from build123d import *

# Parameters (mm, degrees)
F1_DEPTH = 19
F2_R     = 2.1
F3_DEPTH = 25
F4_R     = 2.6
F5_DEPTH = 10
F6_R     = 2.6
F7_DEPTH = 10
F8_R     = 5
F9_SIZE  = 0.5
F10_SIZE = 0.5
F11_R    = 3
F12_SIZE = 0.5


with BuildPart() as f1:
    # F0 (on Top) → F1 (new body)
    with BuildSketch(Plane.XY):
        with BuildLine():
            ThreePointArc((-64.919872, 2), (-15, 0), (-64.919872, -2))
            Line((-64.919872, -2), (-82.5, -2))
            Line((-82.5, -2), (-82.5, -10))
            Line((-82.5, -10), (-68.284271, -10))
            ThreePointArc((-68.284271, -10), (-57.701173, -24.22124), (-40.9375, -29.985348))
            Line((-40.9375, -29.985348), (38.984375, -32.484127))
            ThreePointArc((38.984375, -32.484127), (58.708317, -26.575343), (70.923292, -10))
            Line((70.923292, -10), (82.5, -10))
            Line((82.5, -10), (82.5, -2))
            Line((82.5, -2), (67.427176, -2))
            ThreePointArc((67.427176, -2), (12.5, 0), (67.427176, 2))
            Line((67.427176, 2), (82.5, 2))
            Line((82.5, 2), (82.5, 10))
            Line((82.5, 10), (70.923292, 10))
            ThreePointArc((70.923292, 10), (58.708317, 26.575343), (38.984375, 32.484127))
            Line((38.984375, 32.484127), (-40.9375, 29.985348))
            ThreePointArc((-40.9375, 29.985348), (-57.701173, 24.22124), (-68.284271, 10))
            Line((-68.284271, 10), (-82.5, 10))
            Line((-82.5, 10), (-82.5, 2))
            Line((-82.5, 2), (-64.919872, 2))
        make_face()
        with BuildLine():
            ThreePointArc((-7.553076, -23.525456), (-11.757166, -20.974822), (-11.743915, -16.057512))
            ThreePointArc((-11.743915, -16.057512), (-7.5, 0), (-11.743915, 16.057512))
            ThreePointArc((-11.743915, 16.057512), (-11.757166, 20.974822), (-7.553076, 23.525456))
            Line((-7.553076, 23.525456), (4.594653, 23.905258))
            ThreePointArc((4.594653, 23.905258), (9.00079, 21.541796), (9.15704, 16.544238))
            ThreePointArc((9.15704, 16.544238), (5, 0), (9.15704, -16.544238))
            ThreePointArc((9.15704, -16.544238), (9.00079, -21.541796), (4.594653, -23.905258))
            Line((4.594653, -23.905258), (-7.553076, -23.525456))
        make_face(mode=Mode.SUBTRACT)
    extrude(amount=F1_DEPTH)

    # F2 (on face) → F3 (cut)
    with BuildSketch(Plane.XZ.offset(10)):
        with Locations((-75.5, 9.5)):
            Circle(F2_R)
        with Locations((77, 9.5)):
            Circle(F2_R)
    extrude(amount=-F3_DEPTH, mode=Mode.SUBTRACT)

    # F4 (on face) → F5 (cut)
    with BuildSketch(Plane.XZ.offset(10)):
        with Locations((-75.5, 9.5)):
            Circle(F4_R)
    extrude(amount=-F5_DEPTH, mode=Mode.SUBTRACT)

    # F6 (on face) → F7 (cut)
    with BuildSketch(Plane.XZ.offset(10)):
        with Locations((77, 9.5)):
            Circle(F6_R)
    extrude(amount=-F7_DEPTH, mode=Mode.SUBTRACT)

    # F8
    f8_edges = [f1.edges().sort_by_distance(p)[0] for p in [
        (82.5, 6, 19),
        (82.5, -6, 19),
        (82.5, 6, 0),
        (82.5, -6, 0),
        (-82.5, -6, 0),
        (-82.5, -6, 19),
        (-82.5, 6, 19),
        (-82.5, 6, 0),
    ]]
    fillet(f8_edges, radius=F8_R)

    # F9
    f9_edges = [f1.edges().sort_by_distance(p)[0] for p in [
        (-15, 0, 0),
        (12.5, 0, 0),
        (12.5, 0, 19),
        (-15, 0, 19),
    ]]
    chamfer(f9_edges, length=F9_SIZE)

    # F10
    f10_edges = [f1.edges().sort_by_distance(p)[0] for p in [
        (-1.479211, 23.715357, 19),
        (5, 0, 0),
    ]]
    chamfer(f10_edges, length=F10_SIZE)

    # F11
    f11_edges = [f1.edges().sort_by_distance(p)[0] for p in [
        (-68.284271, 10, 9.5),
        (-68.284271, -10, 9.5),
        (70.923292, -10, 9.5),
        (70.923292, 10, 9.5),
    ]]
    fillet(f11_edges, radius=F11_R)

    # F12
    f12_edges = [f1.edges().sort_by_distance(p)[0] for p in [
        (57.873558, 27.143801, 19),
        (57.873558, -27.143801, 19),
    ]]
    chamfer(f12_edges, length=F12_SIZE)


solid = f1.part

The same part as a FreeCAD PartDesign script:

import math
import FreeCAD as App
import Part
import Sketcher
from FreeCAD import Vector


def edges_at(feature, points):
    """Names of the edges that pass closest to the given points."""
    edges = feature.Shape.Edges
    near = lambda p: min(range(len(edges)), key=lambda i: edges[i].distToShape(Part.Vertex(*p))[0])
    return sorted({f"Edge{near(p) + 1}" for p in points})

doc = App.newDocument("Part")
body = doc.addObject("PartDesign::Body", "Body")

# Sketch on XY plane
sketch1 = doc.addObject("Sketcher::SketchObject", "Sketch")
body.addObject(sketch1)
sketch1.AttachmentSupport = (doc.XY_Plane, [""])
sketch1.MapMode = "FlatFace"
sketch1.addGeometry(Part.ArcOfCircle(Part.Circle(Vector(-40, 0, 0), Vector(0, 0, 1), 25), math.radians(-175), math.radians(175)), False)
sketch1.addGeometry(Part.LineSegment(Vector(-64.9, -2, 0), Vector(-82.5, -2, 0)), False)
sketch1.addGeometry(Part.LineSegment(Vector(-82.5, -2, 0), Vector(-82.5, -10, 0)), False)
sketch1.addGeometry(Part.LineSegment(Vector(-82.5, -10, 0), Vector(-68.3, -10, 0)), False)
sketch1.addGeometry(Part.ArcOfCircle(Part.Circle(Vector(-40, 0, 0), Vector(0, 0, 1), 30), math.radians(-161), math.radians(-92)), False)
sketch1.addGeometry(Part.LineSegment(Vector(-40.9, -30, 0), Vector(39, -32.5, 0)), False)
sketch1.addGeometry(Part.ArcOfCircle(Part.Circle(Vector(40, 0, 0), Vector(0, 0, 1), 32.5), math.radians(-92), math.radians(-18)), False)
sketch1.addGeometry(Part.LineSegment(Vector(70.9, -10, 0), Vector(82.5, -10, 0)), False)
sketch1.addGeometry(Part.LineSegment(Vector(82.5, -10, 0), Vector(82.5, -2, 0)), False)
sketch1.addGeometry(Part.LineSegment(Vector(82.5, -2, 0), Vector(67.4, -2, 0)), False)
sketch1.addGeometry(Part.ArcOfCircle(Part.Circle(Vector(40, 0, 0), Vector(0, 0, 1), 27.5), math.radians(4), math.radians(356)), False)
sketch1.addGeometry(Part.LineSegment(Vector(67.4, 2, 0), Vector(82.5, 2, 0)), False)
sketch1.addGeometry(Part.LineSegment(Vector(82.5, 2, 0), Vector(82.5, 10, 0)), False)
sketch1.addGeometry(Part.LineSegment(Vector(82.5, 10, 0), Vector(70.9, 10, 0)), False)
sketch1.addGeometry(Part.ArcOfCircle(Part.Circle(Vector(40, 0, 0), Vector(0, 0, 1), 32.5), math.radians(18), math.radians(92)), False)
sketch1.addGeometry(Part.LineSegment(Vector(39, 32.5, 0), Vector(-40.9, 30, 0)), False)
sketch1.addGeometry(Part.ArcOfCircle(Part.Circle(Vector(-40, 0, 0), Vector(0, 0, 1), 30), math.radians(92), math.radians(161)), False)
sketch1.addGeometry(Part.LineSegment(Vector(-68.3, 10, 0), Vector(-82.5, 10, 0)), False)
sketch1.addGeometry(Part.LineSegment(Vector(-82.5, 10, 0), Vector(-82.5, 2, 0)), False)
sketch1.addGeometry(Part.LineSegment(Vector(-82.5, 2, 0), Vector(-64.9, 2, 0)), False)
sketch1.addGeometry(Part.LineSegment(Vector(4.6, -23.9, 0), Vector(-7.6, -23.5, 0)), False)
sketch1.addGeometry(Part.ArcOfCircle(Part.Circle(Vector(-7.4, -18.5, 0), Vector(0, 0, 1), 5), math.radians(150), math.radians(268)), False)
sketch1.addGeometry(Part.ArcOfCircle(Part.Circle(Vector(-40, 0, 0), Vector(0, 0, 1), 32.5), math.radians(-30), math.radians(30)), False)
sketch1.addGeometry(Part.ArcOfCircle(Part.Circle(Vector(-7.4, 18.5, 0), Vector(0, 0, 1), 5), math.radians(92), math.radians(210)), False)
sketch1.addGeometry(Part.LineSegment(Vector(-7.6, 23.5, 0), Vector(4.6, 23.9, 0)), False)
sketch1.addGeometry(Part.ArcOfCircle(Part.Circle(Vector(4.8, 18.9, 0), Vector(0, 0, 1), 5), math.radians(-28), math.radians(92)), False)
sketch1.addGeometry(Part.ArcOfCircle(Part.Circle(Vector(40, 0, 0), Vector(0, 0, 1), 35), math.radians(152), math.radians(208)), False)
sketch1.addGeometry(Part.ArcOfCircle(Part.Circle(Vector(4.8, -18.9, 0), Vector(0, 0, 1), 5), math.radians(-92), math.radians(28)), False)
sketch1.addConstraint(Sketcher.Constraint("Coincident", 0, 1, 1, 1))
sketch1.addConstraint(Sketcher.Constraint("Coincident", 1, 2, 2, 1))
sketch1.addConstraint(Sketcher.Constraint("Coincident", 2, 2, 3, 1))
sketch1.addConstraint(Sketcher.Constraint("Coincident", 3, 2, 4, 1))
sketch1.addConstraint(Sketcher.Constraint("Tangent", 4, 2, 5, 1))
sketch1.addConstraint(Sketcher.Constraint("Tangent", 5, 2, 6, 1))
sketch1.addConstraint(Sketcher.Constraint("Coincident", 6, 2, 7, 1))
sketch1.addConstraint(Sketcher.Constraint("Coincident", 7, 2, 8, 1))
sketch1.addConstraint(Sketcher.Constraint("Coincident", 8, 2, 9, 1))
sketch1.addConstraint(Sketcher.Constraint("Coincident", 9, 2, 10, 2))
sketch1.addConstraint(Sketcher.Constraint("Coincident", 10, 1, 11, 1))
sketch1.addConstraint(Sketcher.Constraint("Coincident", 11, 2, 12, 1))
sketch1.addConstraint(Sketcher.Constraint("Coincident", 12, 2, 13, 1))
sketch1.addConstraint(Sketcher.Constraint("Coincident", 13, 2, 14, 1))
sketch1.addConstraint(Sketcher.Constraint("Tangent", 14, 2, 15, 1))
sketch1.addConstraint(Sketcher.Constraint("Tangent", 15, 2, 16, 1))
sketch1.addConstraint(Sketcher.Constraint("Coincident", 16, 2, 17, 1))
sketch1.addConstraint(Sketcher.Constraint("Coincident", 17, 2, 18, 1))
sketch1.addConstraint(Sketcher.Constraint("Coincident", 18, 2, 19, 1))
sketch1.addConstraint(Sketcher.Constraint("Coincident", 19, 2, 0, 2))
sketch1.addConstraint(Sketcher.Constraint("Tangent", 20, 2, 21, 2))
sketch1.addConstraint(Sketcher.Constraint("Tangent", 21, 1, 22, 1))
sketch1.addConstraint(Sketcher.Constraint("Tangent", 22, 2, 23, 2))
sketch1.addConstraint(Sketcher.Constraint("Tangent", 23, 1, 24, 1))
sketch1.addConstraint(Sketcher.Constraint("Tangent", 24, 2, 25, 2))
sketch1.addConstraint(Sketcher.Constraint("Tangent", 25, 1, 26, 1))
sketch1.addConstraint(Sketcher.Constraint("Tangent", 26, 2, 27, 2))
sketch1.addConstraint(Sketcher.Constraint("Tangent", 27, 1, 20, 1))
sketch1.addConstraint(Sketcher.Constraint("Horizontal", 1))
sketch1.addConstraint(Sketcher.Constraint("Vertical", 2))
sketch1.addConstraint(Sketcher.Constraint("Horizontal", 3))
sketch1.addConstraint(Sketcher.Constraint("Horizontal", 7))
sketch1.addConstraint(Sketcher.Constraint("Vertical", 8))
sketch1.addConstraint(Sketcher.Constraint("Horizontal", 9))
sketch1.addConstraint(Sketcher.Constraint("Horizontal", 11))
sketch1.addConstraint(Sketcher.Constraint("Vertical", 12))
sketch1.addConstraint(Sketcher.Constraint("Horizontal", 13))
sketch1.addConstraint(Sketcher.Constraint("Horizontal", 17))
sketch1.addConstraint(Sketcher.Constraint("Vertical", 18))
sketch1.addConstraint(Sketcher.Constraint("Horizontal", 19))
sketch1.addConstraint(Sketcher.Constraint("Coincident", 4, 3, 0, 3))
sketch1.addConstraint(Sketcher.Constraint("Coincident", 10, 3, 6, 3))
sketch1.addConstraint(Sketcher.Constraint("Coincident", 14, 3, 6, 3))
sketch1.addConstraint(Sketcher.Constraint("Coincident", 16, 3, 0, 3))
sketch1.addConstraint(Sketcher.Constraint("Coincident", 22, 3, 0, 3))
sketch1.addConstraint(Sketcher.Constraint("Coincident", 26, 3, 6, 3))
sketch1.addConstraint(Sketcher.Constraint("Equal", 6, 14))
sketch1.addConstraint(Sketcher.Constraint("Equal", 4, 16))
sketch1.addConstraint(Sketcher.Constraint("Equal", 21, 23))
sketch1.addConstraint(Sketcher.Constraint("Equal", 23, 25))
sketch1.addConstraint(Sketcher.Constraint("Equal", 25, 27))
sketch1.addConstraint(Sketcher.Constraint("Symmetric", 0, 3, 6, 3, -1, 1))
sketch1.addConstraint(Sketcher.Constraint("Symmetric", 1, 2, 11, 2, -1, 1))
sketch1.addConstraint(Sketcher.Constraint("Symmetric", 7, 2, 17, 2, -1, 1))
sketch1.addConstraint(Sketcher.Constraint("Symmetric", 2, 2, 7, 2, -2))
sketch1.addConstraint(Sketcher.Constraint("Symmetric", 21, 3, 23, 3, -1))
sketch1.addConstraint(Sketcher.Constraint("Parallel", 5, 20))
sketch1.addConstraint(Sketcher.Constraint("Parallel", 15, 24))
sketch1.addConstraint(Sketcher.Constraint("Horizontal", 1, 2, 8, 2))
sketch1.addConstraint(Sketcher.Constraint("Horizontal", 13, 2, 16, 2))
sketch1.addConstraint(Sketcher.Constraint("Horizontal", 11, 2, 18, 2))
sketch1.addConstraint(Sketcher.Constraint("Radius", 0, 25.0))
sketch1.addConstraint(Sketcher.Constraint("Radius", 4, 30.0))
sketch1.addConstraint(Sketcher.Constraint("Radius", 21, 4.999999))
sketch1.addConstraint(Sketcher.Constraint("Radius", 26, 34.999999))
sketch1.addConstraint(Sketcher.Constraint("Radius", 6, 32.500001))
sketch1.addConstraint(Sketcher.Constraint("Radius", 10, 27.5))
sketch1.addConstraint(Sketcher.Constraint("DistanceY", 2, 2, 2, 1, 8.0))
sketch1.addConstraint(Sketcher.Constraint("DistanceX", 0, 3, -1, 1, 40.0))
sketch1.addConstraint(Sketcher.Constraint("DistanceY", 0, 1, -1, 1, 2.0))
sketch1.addConstraint(Sketcher.Constraint("DistanceX", 1, 2, -1, 1, 82.5))
sketch1.addConstraint(Sketcher.Constraint("Radius", 22, 32.500004))
sketch1.addConstraint(Sketcher.Constraint("DistanceY", 21, 3, -1, 1, 18.527899))
pad1 = doc.addObject("PartDesign::Pad", "Pad")
body.addObject(pad1)
pad1.Profile = sketch1
pad1.Length = 19

# Sketch on XZ plane
sketch2 = doc.addObject("Sketcher::SketchObject", "Sketch001")
body.addObject(sketch2)
sketch2.AttachmentSupport = (doc.XZ_Plane, [""])
sketch2.MapMode = "FlatFace"
sketch2.AttachmentOffset = App.Placement(Vector(0, 0, 10), App.Rotation())
sketch2.addGeometry(Part.Circle(Vector(-75.5, 9.5, 0), Vector(0, 0, 1), 2.1), False)
sketch2.addGeometry(Part.Circle(Vector(77, 9.5, 0), Vector(0, 0, 1), 2.1), False)
sketch2.addConstraint(Sketcher.Constraint("Equal", 0, 1))
sketch2.addConstraint(Sketcher.Constraint("Horizontal", 0, 3, 1, 3))
sketch2.addConstraint(Sketcher.Constraint("Diameter", 0, 4.2))
sketch2.addConstraint(Sketcher.Constraint("DistanceX", -1, 1, 1, 3, 77.0))
sketch2.addConstraint(Sketcher.Constraint("DistanceX", 0, 3, -1, 1, 75.5))
sketch2.addConstraint(Sketcher.Constraint("DistanceY", -1, 1, 0, 3, 9.5))
pocket1 = doc.addObject("PartDesign::Pocket", "Pocket")
body.addObject(pocket1)
pocket1.Profile = sketch2
pocket1.Length = 25

# Sketch on XZ plane
sketch3 = doc.addObject("Sketcher::SketchObject", "Sketch002")
body.addObject(sketch3)
sketch3.AttachmentSupport = (doc.XZ_Plane, [""])
sketch3.MapMode = "FlatFace"
sketch3.AttachmentOffset = App.Placement(Vector(0, 0, 10), App.Rotation())
sketch3.addGeometry(Part.Circle(Vector(-75.5, 9.5, 0), Vector(0, 0, 1), 2.6), False)
sketch3.addConstraint(Sketcher.Constraint("Diameter", 0, 5.2))
sketch3.addConstraint(Sketcher.Constraint("DistanceX", 0, 3, -1, 1, 75.5))
sketch3.addConstraint(Sketcher.Constraint("DistanceY", -1, 1, 0, 3, 9.5))
pocket2 = doc.addObject("PartDesign::Pocket", "Pocket001")
body.addObject(pocket2)
pocket2.Profile = sketch3
pocket2.Length = 10

# Sketch on XZ plane
sketch4 = doc.addObject("Sketcher::SketchObject", "Sketch003")
body.addObject(sketch4)
sketch4.AttachmentSupport = (doc.XZ_Plane, [""])
sketch4.MapMode = "FlatFace"
sketch4.AttachmentOffset = App.Placement(Vector(0, 0, 10), App.Rotation())
sketch4.addGeometry(Part.Circle(Vector(77, 9.5, 0), Vector(0, 0, 1), 2.6), False)
sketch4.addConstraint(Sketcher.Constraint("Diameter", 0, 5.2))
sketch4.addConstraint(Sketcher.Constraint("DistanceX", -1, 1, 0, 3, 77.0))
sketch4.addConstraint(Sketcher.Constraint("DistanceY", -1, 1, 0, 3, 9.5))
pocket3 = doc.addObject("PartDesign::Pocket", "Pocket002")
body.addObject(pocket3)
pocket3.Profile = sketch4
pocket3.Length = 10
doc.recompute()

fillet = doc.addObject("PartDesign::Fillet", "Fillet")
body.addObject(fillet)
fillet.Base = (pocket3, edges_at(pocket3, [
    (82.5, 6, 19),
    (82.5, -6, 19),
    (82.5, 6, 0),
    (82.5, -6, 0),
    (-82.5, -6, 0),
    (-82.5, -6, 19),
    (-82.5, 6, 19),
    (-82.5, 6, 0),
]))
fillet.Radius = 5
doc.recompute()

chamfer = doc.addObject("PartDesign::Chamfer", "Chamfer")
body.addObject(chamfer)
chamfer.Base = (fillet, edges_at(fillet, [
    (-15, 0, 0),
    (12.5, 0, 0),
    (12.5, 0, 19),
    (-15, 0, 19),
]))
chamfer.Size = 0.5
doc.recompute()

chamfer2 = doc.addObject("PartDesign::Chamfer", "Chamfer001")
body.addObject(chamfer2)
chamfer2.Base = (chamfer, edges_at(chamfer, [(-1.479, 23.715, 19), (5, 0, 0)]))
chamfer2.Size = 0.5
doc.recompute()

fillet2 = doc.addObject("PartDesign::Fillet", "Fillet001")
body.addObject(fillet2)
fillet2.Base = (chamfer2, edges_at(chamfer2, [
    (-68.284, 10, 9.5),
    (-68.284, -10, 9.5),
    (70.923, -10, 9.5),
    (70.923, 10, 9.5),
]))
fillet2.Radius = 3
doc.recompute()

chamfer3 = doc.addObject("PartDesign::Chamfer", "Chamfer002")
body.addObject(chamfer3)
chamfer3.Base = (fillet2, edges_at(fillet2, [(57.874, 27.144, 19), (57.874, -27.144, 19)]))
chamfer3.Size = 0.5

doc.recompute()
